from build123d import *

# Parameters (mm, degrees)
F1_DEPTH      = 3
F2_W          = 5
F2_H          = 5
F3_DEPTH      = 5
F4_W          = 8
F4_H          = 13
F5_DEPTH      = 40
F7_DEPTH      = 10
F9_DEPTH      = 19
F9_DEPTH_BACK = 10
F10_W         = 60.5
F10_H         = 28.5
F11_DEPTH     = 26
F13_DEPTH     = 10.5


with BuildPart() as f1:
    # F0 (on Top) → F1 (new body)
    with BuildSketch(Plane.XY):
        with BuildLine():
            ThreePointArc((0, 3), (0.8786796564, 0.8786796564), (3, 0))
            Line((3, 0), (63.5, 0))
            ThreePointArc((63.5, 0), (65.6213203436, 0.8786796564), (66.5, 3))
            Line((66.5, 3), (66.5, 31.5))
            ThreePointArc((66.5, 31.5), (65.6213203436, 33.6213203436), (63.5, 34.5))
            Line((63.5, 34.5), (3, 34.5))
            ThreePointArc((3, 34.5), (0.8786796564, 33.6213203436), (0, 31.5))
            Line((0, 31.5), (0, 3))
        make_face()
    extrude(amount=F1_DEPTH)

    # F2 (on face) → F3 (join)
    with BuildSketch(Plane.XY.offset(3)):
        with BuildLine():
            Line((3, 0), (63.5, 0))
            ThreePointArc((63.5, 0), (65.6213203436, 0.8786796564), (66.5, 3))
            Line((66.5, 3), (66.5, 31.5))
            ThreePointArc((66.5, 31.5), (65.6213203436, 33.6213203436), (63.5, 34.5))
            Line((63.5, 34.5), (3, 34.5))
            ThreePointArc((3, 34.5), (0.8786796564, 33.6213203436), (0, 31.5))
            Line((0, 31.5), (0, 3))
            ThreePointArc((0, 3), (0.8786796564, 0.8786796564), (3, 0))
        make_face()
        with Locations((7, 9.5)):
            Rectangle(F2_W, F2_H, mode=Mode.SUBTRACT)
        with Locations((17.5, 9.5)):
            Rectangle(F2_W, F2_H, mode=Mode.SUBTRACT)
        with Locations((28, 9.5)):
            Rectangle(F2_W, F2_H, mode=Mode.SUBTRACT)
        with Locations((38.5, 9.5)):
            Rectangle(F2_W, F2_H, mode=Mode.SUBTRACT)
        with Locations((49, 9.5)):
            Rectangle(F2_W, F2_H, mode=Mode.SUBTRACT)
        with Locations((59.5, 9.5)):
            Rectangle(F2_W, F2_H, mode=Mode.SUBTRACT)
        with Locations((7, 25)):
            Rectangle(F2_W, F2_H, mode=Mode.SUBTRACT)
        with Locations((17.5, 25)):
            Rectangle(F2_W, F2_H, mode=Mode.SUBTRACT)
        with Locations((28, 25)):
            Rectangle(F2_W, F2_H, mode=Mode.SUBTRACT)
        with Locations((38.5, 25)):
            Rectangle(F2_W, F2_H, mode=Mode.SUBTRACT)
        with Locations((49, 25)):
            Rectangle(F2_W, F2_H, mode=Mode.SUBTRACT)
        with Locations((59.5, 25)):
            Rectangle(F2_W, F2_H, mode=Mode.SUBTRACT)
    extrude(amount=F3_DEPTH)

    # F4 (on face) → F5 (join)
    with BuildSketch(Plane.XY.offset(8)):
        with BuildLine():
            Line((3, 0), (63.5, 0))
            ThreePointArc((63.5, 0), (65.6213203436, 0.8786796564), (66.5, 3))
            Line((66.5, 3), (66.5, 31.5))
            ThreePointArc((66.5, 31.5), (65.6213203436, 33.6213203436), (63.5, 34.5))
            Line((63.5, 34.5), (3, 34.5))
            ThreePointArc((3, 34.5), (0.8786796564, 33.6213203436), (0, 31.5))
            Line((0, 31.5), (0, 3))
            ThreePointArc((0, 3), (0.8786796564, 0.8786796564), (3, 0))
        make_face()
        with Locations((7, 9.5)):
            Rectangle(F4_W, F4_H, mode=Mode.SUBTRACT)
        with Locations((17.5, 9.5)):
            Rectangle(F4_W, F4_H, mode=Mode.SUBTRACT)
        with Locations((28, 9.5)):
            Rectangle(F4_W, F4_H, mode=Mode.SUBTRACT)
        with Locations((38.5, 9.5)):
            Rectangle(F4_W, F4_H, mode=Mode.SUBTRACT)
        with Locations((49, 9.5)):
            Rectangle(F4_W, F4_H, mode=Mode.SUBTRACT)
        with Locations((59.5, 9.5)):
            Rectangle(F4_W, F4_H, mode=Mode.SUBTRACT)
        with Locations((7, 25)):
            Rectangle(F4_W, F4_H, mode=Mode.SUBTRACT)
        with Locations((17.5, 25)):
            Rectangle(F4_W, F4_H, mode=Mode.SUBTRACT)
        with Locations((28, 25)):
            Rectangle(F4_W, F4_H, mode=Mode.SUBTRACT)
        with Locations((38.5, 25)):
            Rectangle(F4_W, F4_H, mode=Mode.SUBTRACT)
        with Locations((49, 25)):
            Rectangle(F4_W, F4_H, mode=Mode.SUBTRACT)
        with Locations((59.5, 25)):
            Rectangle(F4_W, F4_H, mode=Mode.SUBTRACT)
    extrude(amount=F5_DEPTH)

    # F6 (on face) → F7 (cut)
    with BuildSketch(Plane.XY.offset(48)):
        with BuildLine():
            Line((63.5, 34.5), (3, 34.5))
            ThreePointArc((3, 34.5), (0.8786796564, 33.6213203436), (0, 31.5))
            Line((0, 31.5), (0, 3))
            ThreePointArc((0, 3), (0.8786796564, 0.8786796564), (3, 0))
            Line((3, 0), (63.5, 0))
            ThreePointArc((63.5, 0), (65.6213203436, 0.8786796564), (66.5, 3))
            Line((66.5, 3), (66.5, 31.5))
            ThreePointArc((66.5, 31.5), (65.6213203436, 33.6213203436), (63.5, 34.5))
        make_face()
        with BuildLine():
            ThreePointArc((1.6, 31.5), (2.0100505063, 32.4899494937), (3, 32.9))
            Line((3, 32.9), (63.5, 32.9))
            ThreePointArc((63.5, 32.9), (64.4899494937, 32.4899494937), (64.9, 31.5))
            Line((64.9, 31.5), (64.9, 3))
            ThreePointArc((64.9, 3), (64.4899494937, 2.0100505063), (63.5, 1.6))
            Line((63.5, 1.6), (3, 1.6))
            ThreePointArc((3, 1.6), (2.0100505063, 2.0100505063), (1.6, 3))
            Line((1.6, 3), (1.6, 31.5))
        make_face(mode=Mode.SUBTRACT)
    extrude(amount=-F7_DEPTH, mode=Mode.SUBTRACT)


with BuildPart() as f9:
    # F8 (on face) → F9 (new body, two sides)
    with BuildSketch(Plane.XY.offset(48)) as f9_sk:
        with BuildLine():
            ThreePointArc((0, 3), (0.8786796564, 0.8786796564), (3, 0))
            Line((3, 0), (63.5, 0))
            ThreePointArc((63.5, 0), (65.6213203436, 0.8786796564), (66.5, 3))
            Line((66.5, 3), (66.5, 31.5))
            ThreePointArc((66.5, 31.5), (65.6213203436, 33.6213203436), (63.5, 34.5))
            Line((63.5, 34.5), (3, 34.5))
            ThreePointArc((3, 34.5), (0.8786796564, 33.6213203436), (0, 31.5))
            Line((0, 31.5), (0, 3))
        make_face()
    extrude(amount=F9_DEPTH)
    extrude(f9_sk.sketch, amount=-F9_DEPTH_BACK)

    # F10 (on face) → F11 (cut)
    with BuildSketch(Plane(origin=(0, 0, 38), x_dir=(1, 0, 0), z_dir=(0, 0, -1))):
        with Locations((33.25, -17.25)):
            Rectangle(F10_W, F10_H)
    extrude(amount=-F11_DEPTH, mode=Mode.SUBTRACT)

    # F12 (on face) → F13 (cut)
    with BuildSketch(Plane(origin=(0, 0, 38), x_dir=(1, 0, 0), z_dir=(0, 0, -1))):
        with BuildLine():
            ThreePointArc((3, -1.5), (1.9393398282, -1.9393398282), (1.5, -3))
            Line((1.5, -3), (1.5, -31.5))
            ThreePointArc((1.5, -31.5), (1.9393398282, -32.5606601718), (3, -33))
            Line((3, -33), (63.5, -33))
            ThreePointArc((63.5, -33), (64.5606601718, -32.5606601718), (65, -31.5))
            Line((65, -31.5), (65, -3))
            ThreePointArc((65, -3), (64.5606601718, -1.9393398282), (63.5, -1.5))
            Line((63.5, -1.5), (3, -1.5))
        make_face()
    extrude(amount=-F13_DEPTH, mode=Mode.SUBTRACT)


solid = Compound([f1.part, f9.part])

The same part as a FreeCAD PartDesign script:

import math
import FreeCAD as App
import Part
import Sketcher

V = App.Vector


def add_polygon(sketch, points):
    """Adds a closed chain of lines whose ends are joined by coincident constraints."""
    first, n = sketch.GeometryCount, len(points)
    for a, b in zip(points, points[1:] + points[:1]):
        sketch.addGeometry(Part.LineSegment(App.Vector(*a, 0), App.Vector(*b, 0)), False)
    for i in range(n):
        sketch.addConstraint(Sketcher.Constraint("Coincident", first + i, 2, first + (i + 1) % n, 1))

doc = App.newDocument("Part")
body = doc.addObject("PartDesign::Body", "Body")

# Sketch on XY plane
sketch1 = body.newObject("Sketcher::SketchObject", "Sketch")
sketch1.AttachmentSupport = (doc.getObject("XY_Plane"), [""])
sketch1.MapMode = "FlatFace"
sketch1.addGeometry([
    Part.ArcOfCircle(Part.Circle(V(3, 3, 0), V(0, 0, 1), 3), math.radians(180), math.radians(270)),  # 0
    Part.LineSegment(V(3, 0, 0), V(63.5, 0, 0)),  # 1
    Part.ArcOfCircle(Part.Circle(V(63.5, 3, 0), V(0, 0, 1), 3), math.radians(-90), math.radians(0)),  # 2
    Part.LineSegment(V(66.5, 3, 0), V(66.5, 31.5, 0)),  # 3
    Part.ArcOfCircle(Part.Circle(V(63.5, 31.5, 0), V(0, 0, 1), 3), math.radians(0), math.radians(90)),  # 4
    Part.LineSegment(V(63.5, 34.5, 0), V(3, 34.5, 0)),  # 5
    Part.ArcOfCircle(Part.Circle(V(3, 31.5, 0), V(0, 0, 1), 3), math.radians(90), math.radians(180)),  # 6
    Part.LineSegment(V(0, 31.5, 0), V(0, 3, 0)),  # 7
], False)
sketch1.addConstraint([
    Sketcher.Constraint("Tangent", 0, 2, 1, 1),
    Sketcher.Constraint("Tangent", 1, 2, 2, 1),
    Sketcher.Constraint("Tangent", 2, 2, 3, 1),
    Sketcher.Constraint("Tangent", 3, 2, 4, 1),
    Sketcher.Constraint("Tangent", 4, 2, 5, 1),
    Sketcher.Constraint("Tangent", 5, 2, 6, 1),
    Sketcher.Constraint("Tangent", 6, 2, 7, 1),
    Sketcher.Constraint("Tangent", 7, 2, 0, 1),
    Sketcher.Constraint("Horizontal", 1),
    Sketcher.Constraint("Vertical", 3),
    Sketcher.Constraint("Horizontal", 5),
    Sketcher.Constraint("Vertical", 7),
    Sketcher.Constraint("Equal", 0, 2),
    Sketcher.Constraint("Equal", 2, 4),
    Sketcher.Constraint("Equal", 4, 6),
    Sketcher.Constraint("PointOnObject", 0, 2, -1),
    Sketcher.Constraint("PointOnObject", 6, 2, -2),
    Sketcher.Constraint("Radius", 0, 3.0),
    Sketcher.Constraint("DistanceX", 1, 1, 1, 2, 60.5),
    Sketcher.Constraint("DistanceY", 3, 1, 3, 2, 28.5),
])
pad1 = body.newObject("PartDesign::Pad", "Pad")
pad1.Profile = sketch1
pad1.Length = 3

# Sketch on XY plane
sketch2 = body.newObject("Sketcher::SketchObject", "Sketch001")
sketch2.AttachmentSupport = (doc.getObject("XY_Plane"), [""])
sketch2.MapMode = "FlatFace"
sketch2.AttachmentOffset = App.Placement(V(0, 0, 3), App.Rotation())
sketch2.addGeometry(Part.LineSegment(V(3, 0, 0), V(63.5, 0, 0)), False)  # 0
sketch2.addGeometry(Part.ArcOfCircle(Part.Circle(V(63.5, 3, 0), V(0, 0, 1), 3), math.radians(-90), math.radians(0)), False)  # 1
sketch2.addGeometry(Part.LineSegment(V(66.5, 3, 0), V(66.5, 31.5, 0)), False)  # 2
sketch2.addGeometry(Part.ArcOfCircle(Part.Circle(V(63.5, 31.5, 0), V(0, 0, 1), 3), math.radians(0), math.radians(90)), False)  # 3
sketch2.addGeometry(Part.LineSegment(V(63.5, 34.5, 0), V(3, 34.5, 0)), False)  # 4
sketch2.addGeometry(Part.ArcOfCircle(Part.Circle(V(3, 31.5, 0), V(0, 0, 1), 3), math.radians(90), math.radians(180)), False)  # 5
sketch2.addGeometry(Part.LineSegment(V(0, 31.5, 0), V(0, 3, 0)), False)  # 6
sketch2.addGeometry(Part.ArcOfCircle(Part.Circle(V(3, 3, 0), V(0, 0, 1), 3), math.radians(180), math.radians(270)), False)  # 7
add_polygon(sketch2, [(9.5, 7), (4.5, 7), (4.5, 12), (9.5, 12)])  # lines 8-11
add_polygon(sketch2, [(20, 7), (15, 7), (15, 12), (20, 12)])  # lines 12-15
add_polygon(sketch2, [(30.5, 7), (25.5, 7), (25.5, 12), (30.5, 12)])  # lines 16-19
add_polygon(sketch2, [(41, 7), (36, 7), (36, 12), (41, 12)])  # lines 20-23
add_polygon(sketch2, [(51.5, 7), (46.5, 7), (46.5, 12), (51.5, 12)])  # lines 24-27
add_polygon(sketch2, [(62, 7), (57, 7), (57, 12), (62, 12)])  # lines 28-31
add_polygon(sketch2, [(9.5, 22.5), (4.5, 22.5), (4.5, 27.5), (9.5, 27.5)])  # lines 32-35
add_polygon(sketch2, [(20, 22.5), (15, 22.5), (15, 27.5), (20, 27.5)])  # lines 36-39
add_polygon(sketch2, [(30.5, 22.5), (25.5, 22.5), (25.5, 27.5), (30.5, 27.5)])  # lines 40-43
add_polygon(sketch2, [(41, 22.5), (36, 22.5), (36, 27.5), (41, 27.5)])  # lines 44-47
add_polygon(sketch2, [(51.5, 22.5), (46.5, 22.5), (46.5, 27.5), (51.5, 27.5)])  # lines 48-51
add_polygon(sketch2, [(62, 22.5), (57, 22.5), (57, 27.5), (62, 27.5)])  # lines 52-55
sketch2.addConstraint([
    Sketcher.Constraint("Tangent", 0, 2, 1, 1),
    Sketcher.Constraint("Tangent", 1, 2, 2, 1),
    Sketcher.Constraint("Tangent", 2, 2, 3, 1),
    Sketcher.Constraint("Tangent", 3, 2, 4, 1),
    Sketcher.Constraint("Tangent", 4, 2, 5, 1),
    Sketcher.Constraint("Tangent", 5, 2, 6, 1),
    Sketcher.Constraint("Tangent", 6, 2, 7, 1),
    Sketcher.Constraint("Tangent", 7, 2, 0, 1),
    Sketcher.Constraint("Horizontal", 0),
    Sketcher.Constraint("Vertical", 2),
    Sketcher.Constraint("Horizontal", 4),
    Sketcher.Constraint("Vertical", 6),
    Sketcher.Constraint("Horizontal", 8),
    Sketcher.Constraint("Vertical", 9),
    Sketcher.Constraint("Horizontal", 10),
    Sketcher.Constraint("Vertical", 11),
    Sketcher.Constraint("Horizontal", 12),
    Sketcher.Constraint("Vertical", 13),
    Sketcher.Constraint("Horizontal", 14),
    Sketcher.Constraint("Vertical", 15),
    Sketcher.Constraint("Horizontal", 16),
    Sketcher.Constraint("Vertical", 17),
    Sketcher.Constraint("Horizontal", 18),
    Sketcher.Constraint("Vertical", 19),
    Sketcher.Constraint("Horizontal", 20),
    Sketcher.Constraint("Vertical", 21),
    Sketcher.Constraint("Horizontal", 22),
    Sketcher.Constraint("Vertical", 23),
    Sketcher.Constraint("Horizontal", 24),
    Sketcher.Constraint("Vertical", 25),
    Sketcher.Constraint("Horizontal", 26),
    Sketcher.Constraint("Vertical", 27),
    Sketcher.Constraint("Horizontal", 28),
    Sketcher.Constraint("Vertical", 29),
    Sketcher.Constraint("Horizontal", 30),
    Sketcher.Constraint("Vertical", 31),
    Sketcher.Constraint("Horizontal", 32),
    Sketcher.Constraint("Vertical", 33),
    Sketcher.Constraint("Horizontal", 34),
    Sketcher.Constraint("Vertical", 35),
    Sketcher.Constraint("Horizontal", 36),
    Sketcher.Constraint("Vertical", 37),
    Sketcher.Constraint("Horizontal", 38),
    Sketcher.Constraint("Vertical", 39),
    Sketcher.Constraint("Horizontal", 40),
    Sketcher.Constraint("Vertical", 41),
    Sketcher.Constraint("Horizontal", 42),
    Sketcher.Constraint("Vertical", 43),
    Sketcher.Constraint("Horizontal", 44),
    Sketcher.Constraint("Vertical", 45),
    Sketcher.Constraint("Horizontal", 46),
    Sketcher.Constraint("Vertical", 47),
    Sketcher.Constraint("Horizontal", 48),
    Sketcher.Constraint("Vertical", 49),
    Sketcher.Constraint("Horizontal", 50),
    Sketcher.Constraint("Vertical", 51),
    Sketcher.Constraint("Horizontal", 52),
    Sketcher.Constraint("Vertical", 53),
    Sketcher.Constraint("Horizontal", 54),
    Sketcher.Constraint("Vertical", 55),
    Sketcher.Constraint("Equal", 1, 3),
    Sketcher.Constraint("Equal", 3, 5),
    Sketcher.Constraint("Equal", 5, 7),
    Sketcher.Constraint("PointOnObject", 0, 2, -1),
    Sketcher.Constraint("PointOnObject", 5, 2, -2),
    Sketcher.Constraint("Horizontal", 11, 2, 12, 2),
    Sketcher.Constraint("Horizontal", 10, 2, 13, 2),
    Sketcher.Constraint("Horizontal", 15, 2, 16, 2),
    Sketcher.Constraint("Horizontal", 14, 2, 17, 2),
    Sketcher.Constraint("Horizontal", 19, 2, 20, 2),
    Sketcher.Constraint("Horizontal", 18, 2, 21, 2),
    Sketcher.Constraint("Horizontal", 23, 2, 24, 2),
    Sketcher.Constraint("Horizontal", 22, 2, 25, 2),
    Sketcher.Constraint("Horizontal", 27, 2, 28, 2),
    Sketcher.Constraint("Horizontal", 26, 2, 29, 2),
    Sketcher.Constraint("Horizontal", 35, 2, 36, 2),
    Sketcher.Constraint("Horizontal", 34, 2, 37, 2),
    Sketcher.Constraint("Horizontal", 39, 2, 40, 2),
    Sketcher.Constraint("Horizontal", 38, 2, 41, 2),
    Sketcher.Constraint("Horizontal", 43, 2, 44, 2),
    Sketcher.Constraint("Horizontal", 42, 2, 45, 2),
    Sketcher.Constraint("Horizontal", 47, 2, 48, 2),
    Sketcher.Constraint("Horizontal", 46, 2, 49, 2),
    Sketcher.Constraint("Horizontal", 51, 2, 52, 2),
    Sketcher.Constraint("Horizontal", 50, 2, 53, 2),
    Sketcher.Constraint("Vertical", 9, 2, 32, 2),
    Sketcher.Constraint("Vertical", 11, 2, 34, 2),
    Sketcher.Constraint("Vertical", 13, 2, 36, 2),
    Sketcher.Constraint("Vertical", 15, 2, 38, 2),
    Sketcher.Constraint("Vertical", 17, 2, 40, 2),
    Sketcher.Constraint("Vertical", 19, 2, 42, 2),
    Sketcher.Constraint("Vertical", 21, 2, 44, 2),
    Sketcher.Constraint("Vertical", 23, 2, 46, 2),
    Sketcher.Constraint("Vertical", 25, 2, 48, 2),
    Sketcher.Constraint("Vertical", 27, 2, 50, 2),
    Sketcher.Constraint("Vertical", 29, 2, 52, 2),
    Sketcher.Constraint("Vertical", 31, 2, 54, 2),
    Sketcher.Constraint("Equal", 10, 12),
    Sketcher.Constraint("Equal", 14, 16),
    Sketcher.Constraint("Equal", 18, 20),
    Sketcher.Constraint("Equal", 22, 24),
    Sketcher.Constraint("Equal", 26, 28),
    Sketcher.Constraint("Equal", 54, 9),
    Sketcher.Constraint("Equal", 31, 33),
    Sketcher.Constraint("Radius", 1, 3.0),
    Sketcher.Constraint("DistanceX", 8, 2, 8, 1, 5.0),
    Sketcher.Constraint("DistanceX", 0, 1, 0, 2, 60.5),
    Sketcher.Constraint("DistanceY", 2, 1, 2, 2, 28.5),
    Sketcher.Constraint("DistanceY", -1, 1, 8, 2, 7.0),
    Sketcher.Constraint("DistanceX", -1, 1, 12, 2, 15.0),
    Sketcher.Constraint("DistanceX", -1, 1, 20, 2, 36.0),
    Sketcher.Constraint("DistanceX", -1, 1, 28, 2, 57.0),
    Sketcher.Constraint("DistanceX", 11, 2, 16, 2, 16.0),
    Sketcher.Constraint("DistanceX", 19, 2, 24, 2, 16.0),
    Sketcher.Constraint("DistanceX", 26, 2, 1, 3, 12.0),
    Sketcher.Constraint("DistanceY", 32, 2, 5, 3, 9.0),
])
pad2 = body.newObject("PartDesign::Pad", "Pad001")
pad2.Profile = sketch2
pad2.Length = 5

# Sketch on XY plane
sketch3 = body.newObject("Sketcher::SketchObject", "Sketch002")
sketch3.AttachmentSupport = (doc.getObject("XY_Plane"), [""])
sketch3.MapMode = "FlatFace"
sketch3.AttachmentOffset = App.Placement(V(0, 0, 8), App.Rotation())
sketch3.addGeometry(Part.LineSegment(V(3, 0, 0), V(63.5, 0, 0)), False)  # 0
sketch3.addGeometry(Part.ArcOfCircle(Part.Circle(V(63.5, 3, 0), V(0, 0, 1), 3), math.radians(-90), math.radians(0)), False)  # 1
sketch3.addGeometry(Part.LineSegment(V(66.5, 3, 0), V(66.5, 31.5, 0)), False)  # 2
sketch3.addGeometry(Part.ArcOfCircle(Part.Circle(V(63.5, 31.5, 0), V(0, 0, 1), 3), math.radians(0), math.radians(90)), False)  # 3
sketch3.addGeometry(Part.LineSegment(V(63.5, 34.5, 0), V(3, 34.5, 0)), False)  # 4
sketch3.addGeometry(Part.ArcOfCircle(Part.Circle(V(3, 31.5, 0), V(0, 0, 1), 3), math.radians(90), math.radians(180)), False)  # 5
sketch3.addGeometry(Part.LineSegment(V(0, 31.5, 0), V(0, 3, 0)), False)  # 6
sketch3.addGeometry(Part.ArcOfCircle(Part.Circle(V(3, 3, 0), V(0, 0, 1), 3), math.radians(180), math.radians(270)), False)  # 7
add_polygon(sketch3, [(11, 3), (3, 3), (3, 16), (11, 16)])  # lines 8-11
add_polygon(sketch3, [(21.5, 3), (13.5, 3), (13.5, 16), (21.5, 16)])  # lines 12-15
add_polygon(sketch3, [(32, 3), (24, 3), (24, 16), (32, 16)])  # lines 16-19
add_polygon(sketch3, [(42.5, 3), (34.5, 3), (34.5, 16), (42.5, 16)])  # lines 20-23
add_polygon(sketch3, [(53, 3), (45, 3), (45, 16), (53, 16)])  # lines 24-27
add_polygon(sketch3, [(63.5, 3), (55.5, 3), (55.5, 16), (63.5, 16)])  # lines 28-31
add_polygon(sketch3, [(11, 18.5), (3, 18.5), (3, 31.5), (11, 31.5)])  # lines 32-35
add_polygon(sketch3, [(21.5, 18.5), (13.5, 18.5), (13.5, 31.5), (21.5, 31.5)])  # lines 36-39
add_polygon(sketch3, [(32, 18.5), (24, 18.5), (24, 31.5), (32, 31.5)])  # lines 40-43
add_polygon(sketch3, [(42.5, 18.5), (34.5, 18.5), (34.5, 31.5), (42.5, 31.5)])  # lines 44-47
add_polygon(sketch3, [(53, 18.5), (45, 18.5), (45, 31.5), (53, 31.5)])  # lines 48-51
add_polygon(sketch3, [(63.5, 18.5), (55.5, 18.5), (55.5, 31.5), (63.5, 31.5)])  # lines 52-55
sketch3.addConstraint([
    Sketcher.Constraint("Tangent", 0, 2, 1, 1),
    Sketcher.Constraint("Tangent", 1, 2, 2, 1),
    Sketcher.Constraint("Tangent", 2, 2, 3, 1),
    Sketcher.Constraint("Tangent", 3, 2, 4, 1),
    Sketcher.Constraint("Tangent", 4, 2, 5, 1),
    Sketcher.Constraint("Tangent", 5, 2, 6, 1),
    Sketcher.Constraint("Tangent", 6, 2, 7, 1),
    Sketcher.Constraint("Tangent", 7, 2, 0, 1),
    Sketcher.Constraint("Horizontal", 0),
    Sketcher.Constraint("Vertical", 2),
    Sketcher.Constraint("Horizontal", 4),
    Sketcher.Constraint("Vertical", 6),
    Sketcher.Constraint("Horizontal", 8),
    Sketcher.Constraint("Vertical", 9),
    Sketcher.Constraint("Horizontal", 10),
    Sketcher.Constraint("Vertical", 11),
    Sketcher.Constraint("Horizontal", 12),
    Sketcher.Constraint("Vertical", 13),
    Sketcher.Constraint("Horizontal", 14),
    Sketcher.Constraint("Vertical", 15),
    Sketcher.Constraint("Horizontal", 16),
    Sketcher.Constraint("Vertical", 17),
    Sketcher.Constraint("Horizontal", 18),
    Sketcher.Constraint("Vertical", 19),
    Sketcher.Constraint("Horizontal", 20),
    Sketcher.Constraint("Vertical", 21),
    Sketcher.Constraint("Horizontal", 22),
    Sketcher.Constraint("Vertical", 23),
    Sketcher.Constraint("Horizontal", 24),
    Sketcher.Constraint("Vertical", 25),
    Sketcher.Constraint("Horizontal", 26),
    Sketcher.Constraint("Vertical", 27),
    Sketcher.Constraint("Horizontal", 28),
    Sketcher.Constraint("Vertical", 29),
    Sketcher.Constraint("Horizontal", 30),
    Sketcher.Constraint("Vertical", 31),
    Sketcher.Constraint("Horizontal", 32),
    Sketcher.Constraint("Vertical", 33),
    Sketcher.Constraint("Horizontal", 34),
    Sketcher.Constraint("Vertical", 35),
    Sketcher.Constraint("Horizontal", 36),
    Sketcher.Constraint("Vertical", 37),
    Sketcher.Constraint("Horizontal", 38),
    Sketcher.Constraint("Vertical", 39),
    Sketcher.Constraint("Horizontal", 40),
    Sketcher.Constraint("Vertical", 41),
    Sketcher.Constraint("Horizontal", 42),
    Sketcher.Constraint("Vertical", 43),
    Sketcher.Constraint("Horizontal", 44),
    Sketcher.Constraint("Vertical", 45),
    Sketcher.Constraint("Horizontal", 46),
    Sketcher.Constraint("Vertical", 47),
    Sketcher.Constraint("Horizontal", 48),
    Sketcher.Constraint("Vertical", 49),
    Sketcher.Constraint("Horizontal", 50),
    Sketcher.Constraint("Vertical", 51),
    Sketcher.Constraint("Horizontal", 52),
    Sketcher.Constraint("Vertical", 53),
    Sketcher.Constraint("Horizontal", 54),
    Sketcher.Constraint("Vertical", 55),
    Sketcher.Constraint("Coincident", 8, 2, 7, 3),
    Sketcher.Constraint("Coincident", 31, 2, 1, 3),
    Sketcher.Constraint("Coincident", 33, 2, 5, 3),
    Sketcher.Constraint("Coincident", 54, 2, 3, 3),
    Sketcher.Constraint("Equal", 1, 3),
    Sketcher.Constraint("Equal", 3, 5),
    Sketcher.Constraint("Equal", 5, 7),
    Sketcher.Constraint("PointOnObject", 0, 2, -1),
    Sketcher.Constraint("PointOnObject", 5, 2, -2),
    Sketcher.Constraint("Horizontal", 11, 2, 12, 2),
    Sketcher.Constraint("Horizontal", 10, 2, 13, 2),
    Sketcher.Constraint("Horizontal", 15, 2, 16, 2),
    Sketcher.Constraint("Horizontal", 14, 2, 17, 2),
    Sketcher.Constraint("Horizontal", 19, 2, 20, 2),
    Sketcher.Constraint("Horizontal", 18, 2, 21, 2),
    Sketcher.Constraint("Horizontal", 23, 2, 24, 2),
    Sketcher.Constraint("Horizontal", 22, 2, 25, 2),
    Sketcher.Constraint("Horizontal", 26, 2, 29, 2),
    Sketcher.Constraint("Horizontal", 35, 2, 36, 2),
    Sketcher.Constraint("Horizontal", 34, 2, 37, 2),
    Sketcher.Constraint("Horizontal", 39, 2, 40, 2),
    Sketcher.Constraint("Horizontal", 38, 2, 41, 2),
    Sketcher.Constraint("Horizontal", 43, 2, 44, 2),
    Sketcher.Constraint("Horizontal", 42, 2, 45, 2),
    Sketcher.Constraint("Horizontal", 47, 2, 48, 2),
    Sketcher.Constraint("Horizontal", 46, 2, 49, 2),
    Sketcher.Constraint("Horizontal", 51, 2, 52, 2),
    Sketcher.Constraint("Vertical", 11, 2, 34, 2),
    Sketcher.Constraint("Vertical", 13, 2, 36, 2),
    Sketcher.Constraint("Vertical", 15, 2, 38, 2),
    Sketcher.Constraint("Vertical", 17, 2, 40, 2),
    Sketcher.Constraint("Vertical", 19, 2, 42, 2),
    Sketcher.Constraint("Vertical", 21, 2, 44, 2),
    Sketcher.Constraint("Vertical", 23, 2, 46, 2),
    Sketcher.Constraint("Vertical", 25, 2, 48, 2),
    Sketcher.Constraint("Vertical", 27, 2, 50, 2),
    Sketcher.Constraint("Vertical", 29, 2, 52, 2),
    Sketcher.Constraint("Equal", 10, 12),
    Sketcher.Constraint("Equal", 14, 16),
    Sketcher.Constraint("Equal", 18, 20),
    Sketcher.Constraint("Equal", 22, 24),
    Sketcher.Constraint("Equal", 26, 28),
    Sketcher.Constraint("Equal", 31, 33),
    Sketcher.Constraint("Radius", 1, 3.0),
    Sketcher.Constraint("DistanceX", 8, 2, 8, 1, 8.0),
    Sketcher.Constraint("DistanceY", 9, 1, 9, 2, 13.0),
    Sketcher.Constraint("DistanceX", 0, 1, 0, 2, 60.5),
    Sketcher.Constraint("DistanceY", 2, 1, 2, 2, 28.5),
    Sketcher.Constraint("DistanceX", -1, 1, 16, 2, 24.0),
    Sketcher.Constraint("DistanceX", -1, 1, 24, 2, 45.0),
    Sketcher.Constraint("DistanceX", 15, 2, 20, 2, 13.0),
    Sketcher.Constraint("DistanceX", 22, 2, 29, 2, 13.0),
])
pad3 = body.newObject("PartDesign::Pad", "Pad002")
pad3.Profile = sketch3
pad3.Length = 40

# Sketch on XY plane
sketch4 = body.newObject("Sketcher::SketchObject", "Sketch003")
sketch4.AttachmentSupport = (doc.getObject("XY_Plane"), [""])
sketch4.MapMode = "FlatFace"
sketch4.AttachmentOffset = App.Placement(V(0, 0, 48), App.Rotation())
sketch4.addGeometry([
    Part.LineSegment(V(63.5, 34.5, 0), V(3, 34.5, 0)),  # 0
    Part.ArcOfCircle(Part.Circle(V(3, 31.5, 0), V(0, 0, 1), 3), math.radians(90), math.radians(180)),  # 1
    Part.LineSegment(V(0, 31.5, 0), V(0, 3, 0)),  # 2
    Part.ArcOfCircle(Part.Circle(V(3, 3, 0), V(0, 0, 1), 3), math.radians(180), math.radians(270)),  # 3
    Part.LineSegment(V(3, 0, 0), V(63.5, 0, 0)),  # 4
    Part.ArcOfCircle(Part.Circle(V(63.5, 3, 0), V(0, 0, 1), 3), math.radians(-90), math.radians(0)),  # 5
    Part.LineSegment(V(66.5, 3, 0), V(66.5, 31.5, 0)),  # 6
    Part.ArcOfCircle(Part.Circle(V(63.5, 31.5, 0), V(0, 0, 1), 3), math.radians(0), math.radians(90)),  # 7
    Part.LineSegment(V(1.6, 3, 0), V(1.6, 31.5, 0)),  # 8
    Part.ArcOfCircle(Part.Circle(V(3, 31.5, 0), V(0, 0, 1), 1.4), math.radians(90), math.radians(180)),  # 9
    Part.LineSegment(V(3, 32.9, 0), V(63.5, 32.9, 0)),  # 10
    Part.ArcOfCircle(Part.Circle(V(63.5, 31.5, 0), V(0, 0, 1), 1.4), math.radians(0), math.radians(90)),  # 11
    Part.LineSegment(V(64.9, 31.5, 0), V(64.9, 3, 0)),  # 12
    Part.ArcOfCircle(Part.Circle(V(63.5, 3, 0), V(0, 0, 1), 1.4), math.radians(-90), math.radians(0)),  # 13
    Part.LineSegment(V(63.5, 1.6, 0), V(3, 1.6, 0)),  # 14
    Part.ArcOfCircle(Part.Circle(V(3, 3, 0), V(0, 0, 1), 1.4), math.radians(180), math.radians(270)),  # 15
], False)
sketch4.addConstraint([
    Sketcher.Constraint("Tangent", 0, 2, 1, 1),
    Sketcher.Constraint("Tangent", 1, 2, 2, 1),
    Sketcher.Constraint("Tangent", 2, 2, 3, 1),
    Sketcher.Constraint("Tangent", 3, 2, 4, 1),
    Sketcher.Constraint("Tangent", 4, 2, 5, 1),
    Sketcher.Constraint("Tangent", 5, 2, 6, 1),
    Sketcher.Constraint("Tangent", 6, 2, 7, 1),
    Sketcher.Constraint("Tangent", 7, 2, 0, 1),
    Sketcher.Constraint("Tangent", 8, 2, 9, 2),
    Sketcher.Constraint("Tangent", 9, 1, 10, 1),
    Sketcher.Constraint("Tangent", 10, 2, 11, 2),
    Sketcher.Constraint("Tangent", 11, 1, 12, 1),
    Sketcher.Constraint("Tangent", 12, 2, 13, 2),
    Sketcher.Constraint("Tangent", 13, 1, 14, 1),
    Sketcher.Constraint("Tangent", 14, 2, 15, 2),
    Sketcher.Constraint("Tangent", 15, 1, 8, 1),
    Sketcher.Constraint("Horizontal", 0),
    Sketcher.Constraint("Vertical", 2),
    Sketcher.Constraint("Horizontal", 4),
    Sketcher.Constraint("Vertical", 6),
    Sketcher.Constraint("Vertical", 8),
    Sketcher.Constraint("Horizontal", 10),
    Sketcher.Constraint("Vertical", 12),
    Sketcher.Constraint("Horizontal", 14),
    Sketcher.Constraint("Coincident", 9, 3, 1, 3),
    Sketcher.Constraint("Coincident", 11, 3, 7, 3),
    Sketcher.Constraint("Coincident", 13, 3, 5, 3),
    Sketcher.Constraint("Equal", 1, 3),
    Sketcher.Constraint("Equal", 3, 5),
    Sketcher.Constraint("Equal", 5, 7),
    Sketcher.Constraint("Equal", 13, 15),
    Sketcher.Constraint("PointOnObject", 1, 2, -2),
    Sketcher.Constraint("PointOnObject", 3, 2, -1),
    Sketcher.Constraint("Radius", 1, 3.0),
    Sketcher.Constraint("Radius", 9, 1.4),
    Sketcher.Constraint("DistanceX", 0, 2, 0, 1, 60.5),
    Sketcher.Constraint("DistanceY", 2, 2, 2, 1, 28.5),
])
pocket1 = body.newObject("PartDesign::Pocket", "Pocket")
pocket1.Profile = sketch4
pocket1.Length = 10
body2 = doc.addObject("PartDesign::Body", "Body001")

# Sketch on XY plane
sketch5 = body2.newObject("Sketcher::SketchObject", "Sketch004")
sketch5.AttachmentSupport = (doc.getObject("XY_Plane001"), [""])
sketch5.MapMode = "FlatFace"
sketch5.AttachmentOffset = App.Placement(V(0, 0, 48), App.Rotation())
sketch5.addGeometry([
    Part.ArcOfCircle(Part.Circle(V(3, 3, 0), V(0, 0, 1), 3), math.radians(180), math.radians(270)),  # 0
    Part.LineSegment(V(3, 0, 0), V(63.5, 0, 0)),  # 1
    Part.ArcOfCircle(Part.Circle(V(63.5, 3, 0), V(0, 0, 1), 3), math.radians(-90), math.radians(0)),  # 2
    Part.LineSegment(V(66.5, 3, 0), V(66.5, 31.5, 0)),  # 3
    Part.ArcOfCircle(Part.Circle(V(63.5, 31.5, 0), V(0, 0, 1), 3), math.radians(0), math.radians(90)),  # 4
    Part.LineSegment(V(63.5, 34.5, 0), V(3, 34.5, 0)),  # 5
    Part.ArcOfCircle(Part.Circle(V(3, 31.5, 0), V(0, 0, 1), 3), math.radians(90), math.radians(180)),  # 6
    Part.LineSegment(V(0, 31.5, 0), V(0, 3, 0)),  # 7
], False)
sketch5.addConstraint([
    Sketcher.Constraint("Tangent", 0, 2, 1, 1),
    Sketcher.Constraint("Tangent", 1, 2, 2, 1),
    Sketcher.Constraint("Tangent", 2, 2, 3, 1),
    Sketcher.Constraint("Tangent", 3, 2, 4, 1),
    Sketcher.Constraint("Tangent", 4, 2, 5, 1),
    Sketcher.Constraint("Tangent", 5, 2, 6, 1),
    Sketcher.Constraint("Tangent", 6, 2, 7, 1),
    Sketcher.Constraint("Tangent", 7, 2, 0, 1),
    Sketcher.Constraint("Horizontal", 1),
    Sketcher.Constraint("Vertical", 3),
    Sketcher.Constraint("Horizontal", 5),
    Sketcher.Constraint("Vertical", 7),
    Sketcher.Constraint("Equal", 0, 2),
    Sketcher.Constraint("Equal", 2, 4),
    Sketcher.Constraint("Equal", 4, 6),
    Sketcher.Constraint("PointOnObject", 0, 2, -1),
    Sketcher.Constraint("PointOnObject", 6, 2, -2),
    Sketcher.Constraint("Radius", 0, 3.0),
    Sketcher.Constraint("DistanceX", 1, 1, 1, 2, 60.5),
    Sketcher.Constraint("DistanceY", 3, 1, 3, 2, 28.5),
])
pad4 = body2.newObject("PartDesign::Pad", "Pad003")
pad4.Profile = sketch5
pad4.Type = "TwoLengths"
pad4.Length = 19
pad4.Length2 = 10

# Sketch on XY plane
sketch6 = body2.newObject("Sketcher::SketchObject", "Sketch005")
sketch6.AttachmentSupport = (doc.getObject("XY_Plane001"), [""])
sketch6.MapMode = "FlatFace"
sketch6.AttachmentOffset = App.Placement(V(0, 0, 38), App.Rotation())
add_polygon(sketch6, [(3, 3), (3, 32), (64, 32), (64, 3)])  # lines 0-3
sketch6.addConstraint([
    Sketcher.Constraint("Vertical", 0),
    Sketcher.Constraint("Horizontal", 1),
    Sketcher.Constraint("Vertical", 2),
    Sketcher.Constraint("Horizontal", 3),
    Sketcher.Constraint("DistanceX", 1, 1, 1, 2, 60.5),
    Sketcher.Constraint("DistanceY", 0, 1, 0, 2, 28.5),
    Sketcher.Constraint("DistanceX", -1, 1, 0, 2, 3.0),
    Sketcher.Constraint("DistanceY", -1, 1, 2, 2, 3.0),
])
pocket2 = body2.newObject("PartDesign::Pocket", "Pocket001")
pocket2.Profile = sketch6
pocket2.Length = 26
pocket2.Reversed = True

# Sketch on XY plane
sketch7 = body2.newObject("Sketcher::SketchObject", "Sketch006")
sketch7.AttachmentSupport = (doc.getObject("XY_Plane001"), [""])
sketch7.MapMode = "FlatFace"
sketch7.AttachmentOffset = App.Placement(V(0, 0, 38), App.Rotation())
sketch7.addGeometry([
    Part.ArcOfCircle(Part.Circle(V(3, 3, 0), V(0, 0, 1), 1.5), math.radians(180), math.radians(270)),  # 0
    Part.LineSegment(V(1.5, 3, 0), V(1.5, 31.5, 0)),  # 1
    Part.ArcOfCircle(Part.Circle(V(3, 31.5, 0), V(0, 0, 1), 1.5), math.radians(90), math.radians(180)),  # 2
    Part.LineSegment(V(3, 33, 0), V(63.5, 33, 0)),  # 3
    Part.ArcOfCircle(Part.Circle(V(63.5, 31.5, 0), V(0, 0, 1), 1.5), math.radians(0), math.radians(90)),  # 4
    Part.LineSegment(V(65, 31.5, 0), V(65, 3, 0)),  # 5
    Part.ArcOfCircle(Part.Circle(V(63.5, 3, 0), V(0, 0, 1), 1.5), math.radians(-90), math.radians(0)),  # 6
    Part.LineSegment(V(63.5, 1.5, 0), V(3, 1.5, 0)),  # 7
], False)
sketch7.addConstraint([
    Sketcher.Constraint("Tangent", 0, 1, 1, 1),
    Sketcher.Constraint("Tangent", 1, 2, 2, 2),
    Sketcher.Constraint("Tangent", 2, 1, 3, 1),
    Sketcher.Constraint("Tangent", 3, 2, 4, 2),
    Sketcher.Constraint("Tangent", 4, 1, 5, 1),
    Sketcher.Constraint("Tangent", 5, 2, 6, 2),
    Sketcher.Constraint("Tangent", 6, 1, 7, 1),
    Sketcher.Constraint("Tangent", 7, 2, 0, 2),
    Sketcher.Constraint("Vertical", 1),
    Sketcher.Constraint("Horizontal", 3),
    Sketcher.Constraint("Vertical", 5),
    Sketcher.Constraint("Horizontal", 7),
    Sketcher.Constraint("Equal", 0, 2),
    Sketcher.Constraint("Equal", 2, 4),
    Sketcher.Constraint("Equal", 4, 6),
    Sketcher.Constraint("Radius", 0, 1.5),
    Sketcher.Constraint("DistanceX", 3, 1, 3, 2, 60.5),
    Sketcher.Constraint("DistanceY", 1, 1, 1, 2, 28.5),
    Sketcher.Constraint("DistanceX", -1, 1, 0, 3, 3.0),
    Sketcher.Constraint("DistanceY", -1, 1, 0, 3, 3.0),
])
pocket3 = body2.newObject("PartDesign::Pocket", "Pocket002")
pocket3.Profile = sketch7
pocket3.Length = 10.5
pocket3.Reversed = True

doc.recompute()
